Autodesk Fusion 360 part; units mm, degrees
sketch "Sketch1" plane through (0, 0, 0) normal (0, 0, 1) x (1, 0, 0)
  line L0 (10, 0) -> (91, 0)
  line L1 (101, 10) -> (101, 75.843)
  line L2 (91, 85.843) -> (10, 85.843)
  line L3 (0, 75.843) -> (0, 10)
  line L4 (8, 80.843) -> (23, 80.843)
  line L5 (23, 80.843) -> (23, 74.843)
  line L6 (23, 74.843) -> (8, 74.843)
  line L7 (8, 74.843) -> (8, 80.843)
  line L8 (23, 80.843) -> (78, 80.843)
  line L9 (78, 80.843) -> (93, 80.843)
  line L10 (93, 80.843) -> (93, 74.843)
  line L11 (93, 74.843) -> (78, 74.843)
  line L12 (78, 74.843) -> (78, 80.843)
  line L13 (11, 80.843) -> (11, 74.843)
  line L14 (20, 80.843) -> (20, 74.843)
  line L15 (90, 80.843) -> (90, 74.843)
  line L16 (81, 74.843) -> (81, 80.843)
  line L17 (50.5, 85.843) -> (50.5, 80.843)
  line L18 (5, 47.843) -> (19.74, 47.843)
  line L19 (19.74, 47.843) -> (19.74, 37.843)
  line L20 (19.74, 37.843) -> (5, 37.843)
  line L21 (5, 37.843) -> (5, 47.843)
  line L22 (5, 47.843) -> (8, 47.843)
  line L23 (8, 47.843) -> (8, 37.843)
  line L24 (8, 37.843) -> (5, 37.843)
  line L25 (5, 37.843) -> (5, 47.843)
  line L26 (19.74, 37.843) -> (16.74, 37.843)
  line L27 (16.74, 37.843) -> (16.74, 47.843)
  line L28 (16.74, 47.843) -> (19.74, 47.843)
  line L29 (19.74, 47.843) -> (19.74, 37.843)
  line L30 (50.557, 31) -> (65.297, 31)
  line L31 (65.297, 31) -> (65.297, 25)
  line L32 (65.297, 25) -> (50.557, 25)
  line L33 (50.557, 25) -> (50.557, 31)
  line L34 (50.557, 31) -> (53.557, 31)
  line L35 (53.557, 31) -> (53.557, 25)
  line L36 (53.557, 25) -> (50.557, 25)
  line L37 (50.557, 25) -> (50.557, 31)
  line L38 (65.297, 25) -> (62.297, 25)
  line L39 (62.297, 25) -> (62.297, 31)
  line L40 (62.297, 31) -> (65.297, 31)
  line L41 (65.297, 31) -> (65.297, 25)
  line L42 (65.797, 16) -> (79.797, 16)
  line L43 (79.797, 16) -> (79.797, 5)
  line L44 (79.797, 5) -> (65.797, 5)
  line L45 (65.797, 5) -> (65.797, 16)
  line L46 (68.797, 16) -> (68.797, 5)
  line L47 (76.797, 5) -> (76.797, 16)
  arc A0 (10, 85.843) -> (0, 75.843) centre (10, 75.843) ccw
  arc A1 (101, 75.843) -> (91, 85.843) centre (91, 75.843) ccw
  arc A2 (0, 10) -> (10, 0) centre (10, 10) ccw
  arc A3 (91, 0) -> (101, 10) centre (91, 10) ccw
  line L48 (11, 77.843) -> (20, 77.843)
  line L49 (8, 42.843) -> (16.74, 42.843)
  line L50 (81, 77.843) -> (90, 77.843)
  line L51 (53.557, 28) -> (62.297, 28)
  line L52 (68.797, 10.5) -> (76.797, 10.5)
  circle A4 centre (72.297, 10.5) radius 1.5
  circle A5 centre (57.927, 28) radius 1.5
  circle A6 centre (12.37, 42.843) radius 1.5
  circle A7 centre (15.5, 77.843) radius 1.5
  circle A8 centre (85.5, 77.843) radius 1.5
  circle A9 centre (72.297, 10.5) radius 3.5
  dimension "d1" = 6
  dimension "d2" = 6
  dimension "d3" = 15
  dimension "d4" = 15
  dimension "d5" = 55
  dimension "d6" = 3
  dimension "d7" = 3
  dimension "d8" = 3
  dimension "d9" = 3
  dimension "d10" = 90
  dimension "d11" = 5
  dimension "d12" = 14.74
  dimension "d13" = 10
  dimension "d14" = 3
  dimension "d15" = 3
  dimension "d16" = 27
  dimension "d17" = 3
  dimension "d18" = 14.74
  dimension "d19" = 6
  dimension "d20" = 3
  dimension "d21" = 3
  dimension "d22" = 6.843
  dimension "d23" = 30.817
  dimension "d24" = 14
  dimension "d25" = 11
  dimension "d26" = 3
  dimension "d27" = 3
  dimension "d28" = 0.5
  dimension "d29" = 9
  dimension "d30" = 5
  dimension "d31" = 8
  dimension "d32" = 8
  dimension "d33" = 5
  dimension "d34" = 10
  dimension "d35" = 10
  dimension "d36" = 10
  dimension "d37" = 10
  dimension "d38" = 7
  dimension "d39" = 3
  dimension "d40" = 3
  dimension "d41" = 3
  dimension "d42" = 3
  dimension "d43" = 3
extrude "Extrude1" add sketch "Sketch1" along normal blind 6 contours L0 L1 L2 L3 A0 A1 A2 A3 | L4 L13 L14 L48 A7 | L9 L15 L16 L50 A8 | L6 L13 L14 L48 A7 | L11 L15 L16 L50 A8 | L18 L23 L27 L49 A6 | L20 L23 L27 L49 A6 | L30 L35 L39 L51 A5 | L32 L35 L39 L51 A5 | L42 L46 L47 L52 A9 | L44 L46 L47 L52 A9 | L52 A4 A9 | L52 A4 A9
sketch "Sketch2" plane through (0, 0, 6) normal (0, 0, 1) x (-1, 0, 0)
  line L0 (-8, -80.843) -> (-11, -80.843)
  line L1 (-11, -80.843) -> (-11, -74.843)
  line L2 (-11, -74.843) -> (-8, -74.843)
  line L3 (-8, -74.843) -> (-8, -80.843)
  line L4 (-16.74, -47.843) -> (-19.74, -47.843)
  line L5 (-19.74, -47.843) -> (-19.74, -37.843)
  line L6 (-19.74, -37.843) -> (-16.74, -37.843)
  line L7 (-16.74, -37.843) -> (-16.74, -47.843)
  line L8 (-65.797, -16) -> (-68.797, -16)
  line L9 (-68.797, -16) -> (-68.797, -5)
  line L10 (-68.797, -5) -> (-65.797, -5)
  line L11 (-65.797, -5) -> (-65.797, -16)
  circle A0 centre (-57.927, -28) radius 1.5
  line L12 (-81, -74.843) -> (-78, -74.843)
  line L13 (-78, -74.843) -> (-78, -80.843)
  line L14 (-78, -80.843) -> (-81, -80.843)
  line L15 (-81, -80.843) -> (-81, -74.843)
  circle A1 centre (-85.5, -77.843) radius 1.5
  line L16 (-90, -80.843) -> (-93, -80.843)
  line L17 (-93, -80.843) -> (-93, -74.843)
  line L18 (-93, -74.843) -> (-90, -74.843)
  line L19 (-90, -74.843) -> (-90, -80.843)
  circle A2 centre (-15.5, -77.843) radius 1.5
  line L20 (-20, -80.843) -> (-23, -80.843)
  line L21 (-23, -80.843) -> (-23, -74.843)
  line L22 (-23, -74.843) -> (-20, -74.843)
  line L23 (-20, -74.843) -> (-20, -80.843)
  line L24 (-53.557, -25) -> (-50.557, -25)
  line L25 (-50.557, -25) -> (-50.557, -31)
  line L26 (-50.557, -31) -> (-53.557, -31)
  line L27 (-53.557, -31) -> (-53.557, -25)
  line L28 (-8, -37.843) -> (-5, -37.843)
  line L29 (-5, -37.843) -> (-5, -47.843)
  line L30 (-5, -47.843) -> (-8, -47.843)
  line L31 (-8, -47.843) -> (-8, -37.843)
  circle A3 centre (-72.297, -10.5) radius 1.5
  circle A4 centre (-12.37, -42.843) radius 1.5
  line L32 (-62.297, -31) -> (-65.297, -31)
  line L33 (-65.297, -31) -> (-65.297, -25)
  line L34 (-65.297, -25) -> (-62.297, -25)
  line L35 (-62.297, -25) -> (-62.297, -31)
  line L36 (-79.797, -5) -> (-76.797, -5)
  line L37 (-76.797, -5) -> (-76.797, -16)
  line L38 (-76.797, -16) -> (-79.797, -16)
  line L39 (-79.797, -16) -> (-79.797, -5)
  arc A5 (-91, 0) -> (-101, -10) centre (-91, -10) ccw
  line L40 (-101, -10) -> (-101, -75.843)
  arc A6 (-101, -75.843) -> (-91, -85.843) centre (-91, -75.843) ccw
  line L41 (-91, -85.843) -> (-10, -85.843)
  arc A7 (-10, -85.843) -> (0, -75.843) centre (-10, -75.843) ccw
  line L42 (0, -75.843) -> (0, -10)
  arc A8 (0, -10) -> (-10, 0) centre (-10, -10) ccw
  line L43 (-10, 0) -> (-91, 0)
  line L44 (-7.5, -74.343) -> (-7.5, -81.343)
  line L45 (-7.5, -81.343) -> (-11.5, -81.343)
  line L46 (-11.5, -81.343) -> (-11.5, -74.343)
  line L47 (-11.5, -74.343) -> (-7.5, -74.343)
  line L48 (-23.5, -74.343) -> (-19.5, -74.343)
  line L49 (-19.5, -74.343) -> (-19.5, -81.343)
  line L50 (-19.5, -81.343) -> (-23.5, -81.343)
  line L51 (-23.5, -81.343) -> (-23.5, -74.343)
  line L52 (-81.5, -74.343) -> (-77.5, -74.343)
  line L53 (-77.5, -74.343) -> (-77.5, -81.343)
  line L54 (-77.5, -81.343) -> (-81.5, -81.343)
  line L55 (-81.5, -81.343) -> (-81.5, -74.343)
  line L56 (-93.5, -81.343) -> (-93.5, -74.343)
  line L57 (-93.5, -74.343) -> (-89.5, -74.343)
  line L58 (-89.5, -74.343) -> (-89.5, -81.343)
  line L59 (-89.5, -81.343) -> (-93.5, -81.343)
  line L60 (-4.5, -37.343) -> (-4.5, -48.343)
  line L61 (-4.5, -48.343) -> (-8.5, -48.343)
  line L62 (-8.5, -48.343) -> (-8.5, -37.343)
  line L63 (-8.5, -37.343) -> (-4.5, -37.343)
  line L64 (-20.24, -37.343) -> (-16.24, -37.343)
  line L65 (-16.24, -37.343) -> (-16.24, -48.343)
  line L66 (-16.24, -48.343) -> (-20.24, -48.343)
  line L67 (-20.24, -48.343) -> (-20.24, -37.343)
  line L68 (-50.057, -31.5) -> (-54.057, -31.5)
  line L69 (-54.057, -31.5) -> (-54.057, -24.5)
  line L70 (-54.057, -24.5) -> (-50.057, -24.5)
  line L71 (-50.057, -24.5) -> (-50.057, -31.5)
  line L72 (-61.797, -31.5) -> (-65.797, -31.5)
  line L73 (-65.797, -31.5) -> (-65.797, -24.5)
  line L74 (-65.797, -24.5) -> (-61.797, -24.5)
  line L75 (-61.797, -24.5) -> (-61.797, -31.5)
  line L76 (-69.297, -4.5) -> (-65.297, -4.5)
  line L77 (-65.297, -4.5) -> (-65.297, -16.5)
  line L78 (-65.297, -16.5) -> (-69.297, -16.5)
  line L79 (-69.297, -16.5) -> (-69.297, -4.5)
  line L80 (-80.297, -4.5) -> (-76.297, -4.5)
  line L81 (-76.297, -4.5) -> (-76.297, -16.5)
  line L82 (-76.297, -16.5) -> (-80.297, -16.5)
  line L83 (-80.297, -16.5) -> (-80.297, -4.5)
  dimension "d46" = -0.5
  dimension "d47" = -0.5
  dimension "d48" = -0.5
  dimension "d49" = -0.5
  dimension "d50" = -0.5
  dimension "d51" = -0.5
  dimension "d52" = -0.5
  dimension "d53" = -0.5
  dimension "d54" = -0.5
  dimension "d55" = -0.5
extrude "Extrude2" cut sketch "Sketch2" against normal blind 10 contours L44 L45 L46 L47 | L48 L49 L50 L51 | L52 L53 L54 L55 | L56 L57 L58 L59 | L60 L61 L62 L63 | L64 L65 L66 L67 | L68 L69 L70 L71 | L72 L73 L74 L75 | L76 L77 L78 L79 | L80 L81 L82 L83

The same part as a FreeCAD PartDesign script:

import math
import FreeCAD as App
import Part
import Sketcher

V = App.Vector


def add_polygon(sketch, points):
    """Adds a closed chain of lines whose ends are joined by coincident constraints."""
    first, n = sketch.GeometryCount, len(points)
    for a, b in zip(points, points[1:] + points[:1]):
        sketch.addGeometry(Part.LineSegment(App.Vector(*a, 0), App.Vector(*b, 0)), False)
    for i in range(n):
        sketch.addConstraint(Sketcher.Constraint("Coincident", first + i, 2, first + (i + 1) % n, 1))

doc = App.newDocument("Part")
body = doc.addObject("PartDesign::Body", "Body")

# Sketch on XY plane
sketch1 = body.newObject("Sketcher::SketchObject", "Sketch")
sketch1.AttachmentSupport = (doc.getObject("XY_Plane"), [""])
sketch1.MapMode = "FlatFace"
sketch1.addGeometry(Part.ArcOfCircle(Part.Circle(V(10, 10, 0), V(0, 0, 1), 10), math.radians(180), math.radians(270)), False)  # 0
sketch1.addGeometry(Part.LineSegment(V(10, 0, 0), V(91, 0, 0)), False)  # 1
sketch1.addGeometry(Part.ArcOfCircle(Part.Circle(V(91, 10, 0), V(0, 0, 1), 10), math.radians(-90), math.radians(0)), False)  # 2
sketch1.addGeometry(Part.LineSegment(V(101, 10, 0), V(101, 75.8, 0)), False)  # 3
sketch1.addGeometry(Part.ArcOfCircle(Part.Circle(V(91, 75.8, 0), V(0, 0, 1), 10), math.radians(0), math.radians(90)), False)  # 4
sketch1.addGeometry(Part.LineSegment(V(91, 85.8, 0), V(50.5, 85.8, 0)), False)  # 5
sketch1.addGeometry(Part.LineSegment(V(50.5, 85.8, 0), V(10, 85.8, 0)), False)  # 6
sketch1.addGeometry(Part.ArcOfCircle(Part.Circle(V(10, 75.8, 0), V(0, 0, 1), 10), math.radians(90), math.radians(180)), False)  # 7
sketch1.addGeometry(Part.LineSegment(V(0, 75.8, 0), V(0, 10, 0)), False)  # 8
add_polygon(sketch1, [(5, 37.8), (5, 47.8), (8, 47.8), (8, 37.8)])  # lines 9-12
add_polygon(sketch1, [(19.7, 37.8), (16.7, 37.8), (16.7, 47.8), (19.7, 47.8)])  # lines 13-16
add_polygon(sketch1, [(65.8, 5), (65.8, 16), (68.8, 16), (68.8, 5)])  # lines 17-20
add_polygon(sketch1, [(79.8, 5), (76.8, 5), (76.8, 16), (79.8, 16)])  # lines 21-24
add_polygon(sketch1, [(50.6, 25), (50.6, 31), (53.6, 31), (53.6, 25)])  # lines 25-28
add_polygon(sketch1, [(65.3, 25), (62.3, 25), (62.3, 31), (65.3, 31)])  # lines 29-32
add_polygon(sketch1, [(20, 80.8), (23, 80.8), (23, 74.8), (20, 74.8)])  # lines 33-36
add_polygon(sketch1, [(8, 80.8), (11, 80.8), (11, 74.8), (8, 74.8)])  # lines 37-40
add_polygon(sketch1, [(78, 74.8), (78, 80.8), (81, 80.8), (81, 74.8)])  # lines 41-44
add_polygon(sketch1, [(93, 74.8), (90, 74.8), (90, 80.8), (93, 80.8)])  # lines 45-48
sketch1.addGeometry(Part.Circle(V(12.4, 42.8, 0), V(0, 0, 1), 1.5), False)  # 49
sketch1.addGeometry(Part.Circle(V(57.9, 28, 0), V(0, 0, 1), 1.5), False)  # 50
sketch1.addGeometry(Part.Circle(V(15.5, 77.8, 0), V(0, 0, 1), 1.5), False)  # 51
sketch1.addGeometry(Part.Circle(V(85.5, 77.8, 0), V(0, 0, 1), 1.5), False)  # 52
sketch1.addGeometry(Part.Circle(V(72.3, 10.5, 0), V(0, 0, 1), 1.5), False)  # 53
sketch1.addConstraint([
    Sketcher.Constraint("Tangent", 0, 2, 1, 1),
    Sketcher.Constraint("Tangent", 1, 2, 2, 1),
    Sketcher.Constraint("Tangent", 2, 2, 3, 1),
    Sketcher.Constraint("Tangent", 3, 2, 4, 1),
    Sketcher.Constraint("Tangent", 4, 2, 5, 1),
    Sketcher.Constraint("Coincident", 5, 2, 6, 1),
    Sketcher.Constraint("Tangent", 6, 2, 7, 1),
    Sketcher.Constraint("Tangent", 7, 2, 8, 1),
    Sketcher.Constraint("Tangent", 8, 2, 0, 1),
    Sketcher.Constraint("Horizontal", 1),
    Sketcher.Constraint("Vertical", 3),
    Sketcher.Constraint("Horizontal", 5),
    Sketcher.Constraint("Horizontal", 6),
    Sketcher.Constraint("Vertical", 8),
    Sketcher.Constraint("Vertical", 9),
    Sketcher.Constraint("Horizontal", 10),
    Sketcher.Constraint("Vertical", 11),
    Sketcher.Constraint("Horizontal", 12),
    Sketcher.Constraint("Horizontal", 13),
    Sketcher.Constraint("Vertical", 14),
    Sketcher.Constraint("Horizontal", 15),
    Sketcher.Constraint("Vertical", 16),
    Sketcher.Constraint("Vertical", 17),
    Sketcher.Constraint("Horizontal", 18),
    Sketcher.Constraint("Vertical", 19),
    Sketcher.Constraint("Horizontal", 20),
    Sketcher.Constraint("Horizontal", 21),
    Sketcher.Constraint("Vertical", 22),
    Sketcher.Constraint("Horizontal", 23),
    Sketcher.Constraint("Vertical", 24),
    Sketcher.Constraint("Vertical", 25),
    Sketcher.Constraint("Horizontal", 26),
    Sketcher.Constraint("Vertical", 27),
    Sketcher.Constraint("Horizontal", 28),
    Sketcher.Constraint("Horizontal", 29),
    Sketcher.Constraint("Vertical", 30),
    Sketcher.Constraint("Horizontal", 31),
    Sketcher.Constraint("Vertical", 32),
    Sketcher.Constraint("Horizontal", 33),
    Sketcher.Constraint("Vertical", 34),
    Sketcher.Constraint("Horizontal", 35),
    Sketcher.Constraint("Vertical", 36),
    Sketcher.Constraint("Horizontal", 37),
    Sketcher.Constraint("Vertical", 38),
    Sketcher.Constraint("Horizontal", 39),
    Sketcher.Constraint("Vertical", 40),
    Sketcher.Constraint("Vertical", 41),
    Sketcher.Constraint("Horizontal", 42),
    Sketcher.Constraint("Vertical", 43),
    Sketcher.Constraint("Horizontal", 44),
    Sketcher.Constraint("Horizontal", 45),
    Sketcher.Constraint("Vertical", 46),
    Sketcher.Constraint("Horizontal", 47),
    Sketcher.Constraint("Vertical", 48),
    Sketcher.Constraint("Equal", 0, 2),
    Sketcher.Constraint("Equal", 2, 4),
    Sketcher.Constraint("Equal", 4, 7),
    Sketcher.Constraint("Equal", 49, 50),
    Sketcher.Constraint("Equal", 50, 51),
    Sketcher.Constraint("Equal", 51, 52),
    Sketcher.Constraint("Equal", 52, 53),
    Sketcher.Constraint("PointOnObject", 0, 2, -1),
    Sketcher.Constraint("PointOnObject", 7, 2, -2),
    Sketcher.Constraint("Horizontal", 51, 3, 52, 3),
    Sketcher.Constraint("Horizontal", 12, 2, 13, 2),
    Sketcher.Constraint("Horizontal", 10, 2, 14, 2),
    Sketcher.Constraint("Horizontal", 20, 2, 21, 2),
    Sketcher.Constraint("Horizontal", 18, 2, 22, 2),
    Sketcher.Constraint("Horizontal", 28, 2, 29, 2),
    Sketcher.Constraint("Horizontal", 26, 2, 30, 2),
    Sketcher.Constraint("Horizontal", 36, 2, 37, 2),
    Sketcher.Constraint("Horizontal", 35, 2, 38, 2),
    Sketcher.Constraint("Horizontal", 40, 2, 41, 2),
    Sketcher.Constraint("Horizontal", 39, 2, 43, 2),
    Sketcher.Constraint("Horizontal", 44, 2, 45, 2),
    Sketcher.Constraint("Horizontal", 42, 2, 46, 2),
    Sketcher.Constraint("Vertical", 11, 2, 39, 2),
    Sketcher.Constraint("Equal", 5, 6),
    Sketcher.Constraint("Equal", 12, 13),
    Sketcher.Constraint("Equal", 15, 18),
    Sketcher.Constraint("Equal", 20, 21),
    Sketcher.Constraint("Equal", 23, 26),
    Sketcher.Constraint("Equal", 28, 29),
    Sketcher.Constraint("Equal", 31, 33),
    Sketcher.Constraint("Equal", 35, 37),
    Sketcher.Constraint("Equal", 39, 42),
    Sketcher.Constraint("Equal", 44, 45),
    Sketcher.Constraint("Equal", 32, 34),
    Sketcher.Constraint("Diameter", 49, 3.0),
    Sketcher.Constraint("Radius", 0, 10.0),
    Sketcher.Constraint("DistanceX", 10, 1, 10, 2, 3.0),
    Sketcher.Constraint("DistanceY", 9, 1, 9, 2, 10.0),
    Sketcher.Constraint("DistanceY", 17, 1, 17, 2, 11.0),
    Sketcher.Constraint("DistanceY", 25, 1, 25, 2, 6.0),
    Sketcher.Constraint("DistanceX", -1, 1, 9, 2, 5.0),
    Sketcher.Constraint("DistanceY", -1, 1, 19, 2, 5.0),
    Sketcher.Constraint("DistanceX", -1, 1, 45, 2, 90.0),
    Sketcher.Constraint("DistanceY", 52, 3, 4, 2, 8.0),
    Sketcher.Constraint("DistanceY", 49, 3, 9, 2, 5.0),
    Sketcher.Constraint("DistanceX", 19, 2, 21, 2, 8.0),
    Sketcher.Constraint("DistanceY", 50, 3, 25, 2, 3.0),
    Sketcher.Constraint("DistanceY", 17, 2, 25, 2, 15.0),
    Sketcher.Constraint("DistanceY", 51, 3, 33, 2, 3.0),
    Sketcher.Constraint("DistanceX", 7, 3, 35, 2, 10.0),
    Sketcher.Constraint("DistanceX", 42, 2, 4, 3, 10.0),
    Sketcher.Constraint("DistanceX", 43, 2, 45, 2, 9.0),
    Sketcher.Constraint("DistanceY", 2, 3, 53, 3, 0.5),
    Sketcher.Constraint("DistanceX", 32, 2, 17, 2, 0.5),
    Sketcher.Constraint("DistanceX", 9, 2, 15, 2, 14.74),
    Sketcher.Constraint("DistanceY", 49, 3, 7, 3, 33.0),
    Sketcher.Constraint("DistanceX", 51, 3, 52, 3, 70.0),
    Sketcher.Constraint("DistanceX", 51, 3, 5, 2, 35.0),
    Sketcher.Constraint("DistanceX", 17, 2, 53, 3, 6.5),
    Sketcher.Constraint("DistanceY", 3, 1, 3, 2, 65.843),
    Sketcher.Constraint("DistanceX", -1, 1, 49, 3, 12.37),
    Sketcher.Constraint("DistanceX", 50, 3, 53, 3, 14.37),
    Sketcher.Constraint("DistanceX", 25, 2, 50, 3, 7.37),
    Sketcher.Constraint("DistanceX", -1, 1, 50, 3, 57.927),
])
pad1 = body.newObject("PartDesign::Pad", "Pad")
pad1.Profile = sketch1
pad1.Length = 6

# Sketch on XY plane
sketch2 = body.newObject("Sketcher::SketchObject", "Sketch001")
sketch2.AttachmentSupport = (doc.getObject("XY_Plane"), [""])
sketch2.MapMode = "FlatFace"
sketch2.AttachmentOffset = App.Placement(V(0, 0, 6), App.Rotation())
add_polygon(sketch2, [(7.5, 81.3), (7.5, 74.3), (11.5, 74.3), (11.5, 81.3)])  # lines 0-3
add_polygon(sketch2, [(8, 74.8), (8, 80.8), (11, 80.8), (11, 74.8)])  # lines 4-7
add_polygon(sketch2, [(19.5, 74.3), (23.5, 74.3), (23.5, 81.3), (19.5, 81.3)])  # lines 8-11
add_polygon(sketch2, [(20, 74.8), (20, 80.8), (23, 80.8), (23, 74.8)])  # lines 12-15
add_polygon(sketch2, [(77.5, 74.3), (81.5, 74.3), (81.5, 81.3), (77.5, 81.3)])  # lines 16-19
add_polygon(sketch2, [(81, 80.8), (81, 74.8), (78, 74.8), (78, 80.8)])  # lines 20-23
add_polygon(sketch2, [(93.5, 74.3), (93.5, 81.3), (89.5, 81.3), (89.5, 74.3)])  # lines 24-27
add_polygon(sketch2, [(90, 74.8), (90, 80.8), (93, 80.8), (93, 74.8)])  # lines 28-31
add_polygon(sketch2, [(4.5, 48.3), (4.5, 37.3), (8.5, 37.3), (8.5, 48.3)])  # lines 32-35
add_polygon(sketch2, [(8, 47.8), (8, 37.8), (5, 37.8), (5, 47.8)])  # lines 36-39
add_polygon(sketch2, [(16.2, 37.3), (20.2, 37.3), (20.2, 48.3), (16.2, 48.3)])  # lines 40-43
add_polygon(sketch2, [(16.7, 37.8), (16.7, 47.8), (19.7, 47.8), (19.7, 37.8)])  # lines 44-47
add_polygon(sketch2, [(54.1, 31.5), (50.1, 31.5), (50.1, 24.5), (54.1, 24.5)])  # lines 48-51
add_polygon(sketch2, [(53.6, 31), (53.6, 25), (50.6, 25), (50.6, 31)])  # lines 52-55
add_polygon(sketch2, [(65.8, 31.5), (61.8, 31.5), (61.8, 24.5), (65.8, 24.5)])  # lines 56-59
add_polygon(sketch2, [(62.3, 25), (62.3, 31), (65.3, 31), (65.3, 25)])  # lines 60-63
add_polygon(sketch2, [(65.3, 4.5), (69.3, 4.5), (69.3, 16.5), (65.3, 16.5)])  # lines 64-67
add_polygon(sketch2, [(65.8, 5), (65.8, 16), (68.8, 16), (68.8, 5)])  # lines 68-71
add_polygon(sketch2, [(76.3, 4.5), (80.3, 4.5), (80.3, 16.5), (76.3, 16.5)])  # lines 72-75
add_polygon(sketch2, [(79.8, 16), (79.8, 5), (76.8, 5), (76.8, 16)])  # lines 76-79
sketch2.addConstraint([
    Sketcher.Constraint("Vertical", 0),
    Sketcher.Constraint("Horizontal", 1),
    Sketcher.Constraint("Vertical", 2),
    Sketcher.Constraint("Horizontal", 3),
    Sketcher.Constraint("Vertical", 4),
    Sketcher.Constraint("Horizontal", 5),
    Sketcher.Constraint("Vertical", 6),
    Sketcher.Constraint("Horizontal", 7),
    Sketcher.Constraint("Horizontal", 8),
    Sketcher.Constraint("Vertical", 9),
    Sketcher.Constraint("Horizontal", 10),
    Sketcher.Constraint("Vertical", 11),
    Sketcher.Constraint("Vertical", 12),
    Sketcher.Constraint("Horizontal", 13),
    Sketcher.Constraint("Vertical", 14),
    Sketcher.Constraint("Horizontal", 15),
    Sketcher.Constraint("Horizontal", 16),
    Sketcher.Constraint("Vertical", 17),
    Sketcher.Constraint("Horizontal", 18),
    Sketcher.Constraint("Vertical", 19),
    Sketcher.Constraint("Vertical", 20),
    Sketcher.Constraint("Horizontal", 21),
    Sketcher.Constraint("Vertical", 22),
    Sketcher.Constraint("Horizontal", 23),
    Sketcher.Constraint("Vertical", 24),
    Sketcher.Constraint("Horizontal", 25),
    Sketcher.Constraint("Vertical", 26),
    Sketcher.Constraint("Horizontal", 27),
    Sketcher.Constraint("Vertical", 28),
    Sketcher.Constraint("Horizontal", 29),
    Sketcher.Constraint("Vertical", 30),
    Sketcher.Constraint("Horizontal", 31),
    Sketcher.Constraint("Vertical", 32),
    Sketcher.Constraint("Horizontal", 33),
    Sketcher.Constraint("Vertical", 34),
    Sketcher.Constraint("Horizontal", 35),
    Sketcher.Constraint("Vertical", 36),
    Sketcher.Constraint("Horizontal", 37),
    Sketcher.Constraint("Vertical", 38),
    Sketcher.Constraint("Horizontal", 39),
    Sketcher.Constraint("Horizontal", 40),
    Sketcher.Constraint("Vertical", 41),
    Sketcher.Constraint("Horizontal", 42),
    Sketcher.Constraint("Vertical", 43),
    Sketcher.Constraint("Vertical", 44),
    Sketcher.Constraint("Horizontal", 45),
    Sketcher.Constraint("Vertical", 46),
    Sketcher.Constraint("Horizontal", 47),
    Sketcher.Constraint("Horizontal", 48),
    Sketcher.Constraint("Vertical", 49),
    Sketcher.Constraint("Horizontal", 50),
    Sketcher.Constraint("Vertical", 51),
    Sketcher.Constraint("Vertical", 52),
    Sketcher.Constraint("Horizontal", 53),
    Sketcher.Constraint("Vertical", 54),
    Sketcher.Constraint("Horizontal", 55),
    Sketcher.Constraint("Horizontal", 56),
    Sketcher.Constraint("Vertical", 57),
    Sketcher.Constraint("Horizontal", 58),
    Sketcher.Constraint("Vertical", 59),
    Sketcher.Constraint("Vertical", 60),
    Sketcher.Constraint("Horizontal", 61),
    Sketcher.Constraint("Vertical", 62),
    Sketcher.Constraint("Horizontal", 63),
    Sketcher.Constraint("Horizontal", 64),
    Sketcher.Constraint("Vertical", 65),
    Sketcher.Constraint("Horizontal", 66),
    Sketcher.Constraint("Vertical", 67),
    Sketcher.Constraint("Vertical", 68),
    Sketcher.Constraint("Horizontal", 69),
    Sketcher.Constraint("Vertical", 70),
    Sketcher.Constraint("Horizontal", 71),
    Sketcher.Constraint("Horizontal", 72),
    Sketcher.Constraint("Vertical", 73),
    Sketcher.Constraint("Horizontal", 74),
    Sketcher.Constraint("Vertical", 75),
    Sketcher.Constraint("Vertical", 76),
    Sketcher.Constraint("Horizontal", 77),
    Sketcher.Constraint("Vertical", 78),
    Sketcher.Constraint("Horizontal", 79),
    Sketcher.Constraint("Horizontal", 1, 2, 8, 2),
    Sketcher.Constraint("Horizontal", 3, 2, 9, 2),
    Sketcher.Constraint("Horizontal", 5, 2, 12, 2),
    Sketcher.Constraint("Horizontal", 7, 2, 14, 2),
    Sketcher.Constraint("Horizontal", 11, 2, 16, 2),
    Sketcher.Constraint("Horizontal", 10, 2, 17, 2),
    Sketcher.Constraint("Horizontal", 15, 2, 20, 2),
    Sketcher.Constraint("Horizontal", 13, 2, 22, 2),
    Sketcher.Constraint("Horizontal", 18, 2, 24, 2),
    Sketcher.Constraint("Horizontal", 19, 2, 26, 2),
    Sketcher.Constraint("Horizontal", 23, 2, 28, 2),
    Sketcher.Constraint("Horizontal", 21, 2, 30, 2),
    Sketcher.Constraint("Horizontal", 33, 2, 40, 2),
    Sketcher.Constraint("Horizontal", 35, 2, 41, 2),
    Sketcher.Constraint("Horizontal", 39, 2, 44, 2),
    Sketcher.Constraint("Horizontal", 37, 2, 46, 2),
    Sketcher.Constraint("Horizontal", 51, 2, 56, 2),
    Sketcher.Constraint("Horizontal", 50, 2, 57, 2),
    Sketcher.Constraint("Horizontal", 55, 2, 60, 2),
    Sketcher.Constraint("Horizontal", 53, 2, 62, 2),
    Sketcher.Constraint("Horizontal", 67, 2, 72, 2),
    Sketcher.Constraint("Horizontal", 66, 2, 73, 2),
    Sketcher.Constraint("Horizontal", 71, 2, 76, 2),
    Sketcher.Constraint("Horizontal", 69, 2, 78, 2),
    Sketcher.Constraint("Vertical", 7, 2, 36, 2),
    Sketcher.Constraint("Vertical", 62, 2, 66, 2),
    Sketcher.Constraint("Vertical", 59, 2, 68, 2),
    Sketcher.Constraint("Equal", 3, 8),
    Sketcher.Constraint("Equal", 7, 13),
    Sketcher.Constraint("Equal", 10, 16),
    Sketcher.Constraint("Equal", 15, 21),
    Sketcher.Constraint("Equal", 18, 25),
    Sketcher.Constraint("Equal", 23, 29),
    Sketcher.Constraint("Equal", 27, 33),
    Sketcher.Constraint("Equal", 31, 37),
    Sketcher.Constraint("Equal", 35, 40),
    Sketcher.Constraint("Equal", 39, 45),
    Sketcher.Constraint("Equal", 42, 48),
    Sketcher.Constraint("Equal", 47, 53),
    Sketcher.Constraint("Equal", 50, 56),
    Sketcher.Constraint("Equal", 55, 61),
    Sketcher.Constraint("Equal", 58, 64),
    Sketcher.Constraint("Equal", 63, 69),
    Sketcher.Constraint("Equal", 66, 72),
    Sketcher.Constraint("Equal", 71, 77),
    Sketcher.Constraint("Equal", 26, 49),
    Sketcher.Constraint("Equal", 30, 52),
    Sketcher.Constraint("Equal", 43, 68),
    Sketcher.Constraint("DistanceX", 1, 1, 1, 2, 4.0),
    Sketcher.Constraint("DistanceX", 5, 1, 5, 2, 3.0),
    Sketcher.Constraint("DistanceY", 0, 2, 0, 1, 7.0),
    Sketcher.Constraint("DistanceY", 4, 1, 4, 2, 6.0),
    Sketcher.Constraint("DistanceY", 32, 2, 32, 1, 11.0),
    Sketcher.Constraint("DistanceY", 36, 2, 36, 1, 10.0),
    Sketcher.Constraint("DistanceY", 65, 1, 65, 2, 12.0),
    Sketcher.Constraint("DistanceX", -1, 1, 4, 2, 8.0),
    Sketcher.Constraint("DistanceX", -1, 1, 12, 2, 20.0),
    Sketcher.Constraint("DistanceX", -1, 1, 20, 2, 81.0),
    Sketcher.Constraint("DistanceX", -1, 1, 28, 2, 90.0),
    Sketcher.Constraint("DistanceY", -1, 1, 52, 2, 25.0),
    Sketcher.Constraint("DistanceY", -1, 1, 68, 2, 16.0),
    Sketcher.Constraint("DistanceX", -1, 1, 0, 2, 7.5),
    Sketcher.Constraint("DistanceX", -1, 1, 8, 2, 23.5),
    Sketcher.Constraint("DistanceX", -1, 1, 16, 2, 81.5),
    Sketcher.Constraint("DistanceX", -1, 1, 24, 2, 93.5),
    Sketcher.Constraint("DistanceX", -1, 1, 32, 2, 4.5),
    Sketcher.Constraint("DistanceY", -1, 1, 48, 2, 31.5),
    Sketcher.Constraint("DistanceY", -1, 1, 64, 2, 4.5),
    Sketcher.Constraint("DistanceX", -1, 1, 40, 2, 20.24),
    Sketcher.Constraint("DistanceX", -1, 1, 44, 2, 16.74),
    Sketcher.Constraint("DistanceY", -1, 1, 0, 2, 74.343),
    Sketcher.Constraint("DistanceY", -1, 1, 4, 2, 80.843),
    Sketcher.Constraint("DistanceY", -1, 1, 32, 2, 37.343),
    Sketcher.Constraint("DistanceY", -1, 1, 36, 2, 37.843),
    Sketcher.Constraint("DistanceX", -1, 1, 48, 2, 50.057),
    Sketcher.Constraint("DistanceX", -1, 1, 52, 2, 53.557),
    Sketcher.Constraint("DistanceX", -1, 1, 56, 2, 61.797),
    Sketcher.Constraint("DistanceX", -1, 1, 60, 2, 62.297),
    Sketcher.Constraint("DistanceX", -1, 1, 72, 2, 80.297),
    Sketcher.Constraint("DistanceX", -1, 1, 76, 2, 79.797),
])
pocket1 = body.newObject("PartDesign::Pocket", "Pocket")
pocket1.Profile = sketch2
pocket1.Length = 10

doc.recompute()
